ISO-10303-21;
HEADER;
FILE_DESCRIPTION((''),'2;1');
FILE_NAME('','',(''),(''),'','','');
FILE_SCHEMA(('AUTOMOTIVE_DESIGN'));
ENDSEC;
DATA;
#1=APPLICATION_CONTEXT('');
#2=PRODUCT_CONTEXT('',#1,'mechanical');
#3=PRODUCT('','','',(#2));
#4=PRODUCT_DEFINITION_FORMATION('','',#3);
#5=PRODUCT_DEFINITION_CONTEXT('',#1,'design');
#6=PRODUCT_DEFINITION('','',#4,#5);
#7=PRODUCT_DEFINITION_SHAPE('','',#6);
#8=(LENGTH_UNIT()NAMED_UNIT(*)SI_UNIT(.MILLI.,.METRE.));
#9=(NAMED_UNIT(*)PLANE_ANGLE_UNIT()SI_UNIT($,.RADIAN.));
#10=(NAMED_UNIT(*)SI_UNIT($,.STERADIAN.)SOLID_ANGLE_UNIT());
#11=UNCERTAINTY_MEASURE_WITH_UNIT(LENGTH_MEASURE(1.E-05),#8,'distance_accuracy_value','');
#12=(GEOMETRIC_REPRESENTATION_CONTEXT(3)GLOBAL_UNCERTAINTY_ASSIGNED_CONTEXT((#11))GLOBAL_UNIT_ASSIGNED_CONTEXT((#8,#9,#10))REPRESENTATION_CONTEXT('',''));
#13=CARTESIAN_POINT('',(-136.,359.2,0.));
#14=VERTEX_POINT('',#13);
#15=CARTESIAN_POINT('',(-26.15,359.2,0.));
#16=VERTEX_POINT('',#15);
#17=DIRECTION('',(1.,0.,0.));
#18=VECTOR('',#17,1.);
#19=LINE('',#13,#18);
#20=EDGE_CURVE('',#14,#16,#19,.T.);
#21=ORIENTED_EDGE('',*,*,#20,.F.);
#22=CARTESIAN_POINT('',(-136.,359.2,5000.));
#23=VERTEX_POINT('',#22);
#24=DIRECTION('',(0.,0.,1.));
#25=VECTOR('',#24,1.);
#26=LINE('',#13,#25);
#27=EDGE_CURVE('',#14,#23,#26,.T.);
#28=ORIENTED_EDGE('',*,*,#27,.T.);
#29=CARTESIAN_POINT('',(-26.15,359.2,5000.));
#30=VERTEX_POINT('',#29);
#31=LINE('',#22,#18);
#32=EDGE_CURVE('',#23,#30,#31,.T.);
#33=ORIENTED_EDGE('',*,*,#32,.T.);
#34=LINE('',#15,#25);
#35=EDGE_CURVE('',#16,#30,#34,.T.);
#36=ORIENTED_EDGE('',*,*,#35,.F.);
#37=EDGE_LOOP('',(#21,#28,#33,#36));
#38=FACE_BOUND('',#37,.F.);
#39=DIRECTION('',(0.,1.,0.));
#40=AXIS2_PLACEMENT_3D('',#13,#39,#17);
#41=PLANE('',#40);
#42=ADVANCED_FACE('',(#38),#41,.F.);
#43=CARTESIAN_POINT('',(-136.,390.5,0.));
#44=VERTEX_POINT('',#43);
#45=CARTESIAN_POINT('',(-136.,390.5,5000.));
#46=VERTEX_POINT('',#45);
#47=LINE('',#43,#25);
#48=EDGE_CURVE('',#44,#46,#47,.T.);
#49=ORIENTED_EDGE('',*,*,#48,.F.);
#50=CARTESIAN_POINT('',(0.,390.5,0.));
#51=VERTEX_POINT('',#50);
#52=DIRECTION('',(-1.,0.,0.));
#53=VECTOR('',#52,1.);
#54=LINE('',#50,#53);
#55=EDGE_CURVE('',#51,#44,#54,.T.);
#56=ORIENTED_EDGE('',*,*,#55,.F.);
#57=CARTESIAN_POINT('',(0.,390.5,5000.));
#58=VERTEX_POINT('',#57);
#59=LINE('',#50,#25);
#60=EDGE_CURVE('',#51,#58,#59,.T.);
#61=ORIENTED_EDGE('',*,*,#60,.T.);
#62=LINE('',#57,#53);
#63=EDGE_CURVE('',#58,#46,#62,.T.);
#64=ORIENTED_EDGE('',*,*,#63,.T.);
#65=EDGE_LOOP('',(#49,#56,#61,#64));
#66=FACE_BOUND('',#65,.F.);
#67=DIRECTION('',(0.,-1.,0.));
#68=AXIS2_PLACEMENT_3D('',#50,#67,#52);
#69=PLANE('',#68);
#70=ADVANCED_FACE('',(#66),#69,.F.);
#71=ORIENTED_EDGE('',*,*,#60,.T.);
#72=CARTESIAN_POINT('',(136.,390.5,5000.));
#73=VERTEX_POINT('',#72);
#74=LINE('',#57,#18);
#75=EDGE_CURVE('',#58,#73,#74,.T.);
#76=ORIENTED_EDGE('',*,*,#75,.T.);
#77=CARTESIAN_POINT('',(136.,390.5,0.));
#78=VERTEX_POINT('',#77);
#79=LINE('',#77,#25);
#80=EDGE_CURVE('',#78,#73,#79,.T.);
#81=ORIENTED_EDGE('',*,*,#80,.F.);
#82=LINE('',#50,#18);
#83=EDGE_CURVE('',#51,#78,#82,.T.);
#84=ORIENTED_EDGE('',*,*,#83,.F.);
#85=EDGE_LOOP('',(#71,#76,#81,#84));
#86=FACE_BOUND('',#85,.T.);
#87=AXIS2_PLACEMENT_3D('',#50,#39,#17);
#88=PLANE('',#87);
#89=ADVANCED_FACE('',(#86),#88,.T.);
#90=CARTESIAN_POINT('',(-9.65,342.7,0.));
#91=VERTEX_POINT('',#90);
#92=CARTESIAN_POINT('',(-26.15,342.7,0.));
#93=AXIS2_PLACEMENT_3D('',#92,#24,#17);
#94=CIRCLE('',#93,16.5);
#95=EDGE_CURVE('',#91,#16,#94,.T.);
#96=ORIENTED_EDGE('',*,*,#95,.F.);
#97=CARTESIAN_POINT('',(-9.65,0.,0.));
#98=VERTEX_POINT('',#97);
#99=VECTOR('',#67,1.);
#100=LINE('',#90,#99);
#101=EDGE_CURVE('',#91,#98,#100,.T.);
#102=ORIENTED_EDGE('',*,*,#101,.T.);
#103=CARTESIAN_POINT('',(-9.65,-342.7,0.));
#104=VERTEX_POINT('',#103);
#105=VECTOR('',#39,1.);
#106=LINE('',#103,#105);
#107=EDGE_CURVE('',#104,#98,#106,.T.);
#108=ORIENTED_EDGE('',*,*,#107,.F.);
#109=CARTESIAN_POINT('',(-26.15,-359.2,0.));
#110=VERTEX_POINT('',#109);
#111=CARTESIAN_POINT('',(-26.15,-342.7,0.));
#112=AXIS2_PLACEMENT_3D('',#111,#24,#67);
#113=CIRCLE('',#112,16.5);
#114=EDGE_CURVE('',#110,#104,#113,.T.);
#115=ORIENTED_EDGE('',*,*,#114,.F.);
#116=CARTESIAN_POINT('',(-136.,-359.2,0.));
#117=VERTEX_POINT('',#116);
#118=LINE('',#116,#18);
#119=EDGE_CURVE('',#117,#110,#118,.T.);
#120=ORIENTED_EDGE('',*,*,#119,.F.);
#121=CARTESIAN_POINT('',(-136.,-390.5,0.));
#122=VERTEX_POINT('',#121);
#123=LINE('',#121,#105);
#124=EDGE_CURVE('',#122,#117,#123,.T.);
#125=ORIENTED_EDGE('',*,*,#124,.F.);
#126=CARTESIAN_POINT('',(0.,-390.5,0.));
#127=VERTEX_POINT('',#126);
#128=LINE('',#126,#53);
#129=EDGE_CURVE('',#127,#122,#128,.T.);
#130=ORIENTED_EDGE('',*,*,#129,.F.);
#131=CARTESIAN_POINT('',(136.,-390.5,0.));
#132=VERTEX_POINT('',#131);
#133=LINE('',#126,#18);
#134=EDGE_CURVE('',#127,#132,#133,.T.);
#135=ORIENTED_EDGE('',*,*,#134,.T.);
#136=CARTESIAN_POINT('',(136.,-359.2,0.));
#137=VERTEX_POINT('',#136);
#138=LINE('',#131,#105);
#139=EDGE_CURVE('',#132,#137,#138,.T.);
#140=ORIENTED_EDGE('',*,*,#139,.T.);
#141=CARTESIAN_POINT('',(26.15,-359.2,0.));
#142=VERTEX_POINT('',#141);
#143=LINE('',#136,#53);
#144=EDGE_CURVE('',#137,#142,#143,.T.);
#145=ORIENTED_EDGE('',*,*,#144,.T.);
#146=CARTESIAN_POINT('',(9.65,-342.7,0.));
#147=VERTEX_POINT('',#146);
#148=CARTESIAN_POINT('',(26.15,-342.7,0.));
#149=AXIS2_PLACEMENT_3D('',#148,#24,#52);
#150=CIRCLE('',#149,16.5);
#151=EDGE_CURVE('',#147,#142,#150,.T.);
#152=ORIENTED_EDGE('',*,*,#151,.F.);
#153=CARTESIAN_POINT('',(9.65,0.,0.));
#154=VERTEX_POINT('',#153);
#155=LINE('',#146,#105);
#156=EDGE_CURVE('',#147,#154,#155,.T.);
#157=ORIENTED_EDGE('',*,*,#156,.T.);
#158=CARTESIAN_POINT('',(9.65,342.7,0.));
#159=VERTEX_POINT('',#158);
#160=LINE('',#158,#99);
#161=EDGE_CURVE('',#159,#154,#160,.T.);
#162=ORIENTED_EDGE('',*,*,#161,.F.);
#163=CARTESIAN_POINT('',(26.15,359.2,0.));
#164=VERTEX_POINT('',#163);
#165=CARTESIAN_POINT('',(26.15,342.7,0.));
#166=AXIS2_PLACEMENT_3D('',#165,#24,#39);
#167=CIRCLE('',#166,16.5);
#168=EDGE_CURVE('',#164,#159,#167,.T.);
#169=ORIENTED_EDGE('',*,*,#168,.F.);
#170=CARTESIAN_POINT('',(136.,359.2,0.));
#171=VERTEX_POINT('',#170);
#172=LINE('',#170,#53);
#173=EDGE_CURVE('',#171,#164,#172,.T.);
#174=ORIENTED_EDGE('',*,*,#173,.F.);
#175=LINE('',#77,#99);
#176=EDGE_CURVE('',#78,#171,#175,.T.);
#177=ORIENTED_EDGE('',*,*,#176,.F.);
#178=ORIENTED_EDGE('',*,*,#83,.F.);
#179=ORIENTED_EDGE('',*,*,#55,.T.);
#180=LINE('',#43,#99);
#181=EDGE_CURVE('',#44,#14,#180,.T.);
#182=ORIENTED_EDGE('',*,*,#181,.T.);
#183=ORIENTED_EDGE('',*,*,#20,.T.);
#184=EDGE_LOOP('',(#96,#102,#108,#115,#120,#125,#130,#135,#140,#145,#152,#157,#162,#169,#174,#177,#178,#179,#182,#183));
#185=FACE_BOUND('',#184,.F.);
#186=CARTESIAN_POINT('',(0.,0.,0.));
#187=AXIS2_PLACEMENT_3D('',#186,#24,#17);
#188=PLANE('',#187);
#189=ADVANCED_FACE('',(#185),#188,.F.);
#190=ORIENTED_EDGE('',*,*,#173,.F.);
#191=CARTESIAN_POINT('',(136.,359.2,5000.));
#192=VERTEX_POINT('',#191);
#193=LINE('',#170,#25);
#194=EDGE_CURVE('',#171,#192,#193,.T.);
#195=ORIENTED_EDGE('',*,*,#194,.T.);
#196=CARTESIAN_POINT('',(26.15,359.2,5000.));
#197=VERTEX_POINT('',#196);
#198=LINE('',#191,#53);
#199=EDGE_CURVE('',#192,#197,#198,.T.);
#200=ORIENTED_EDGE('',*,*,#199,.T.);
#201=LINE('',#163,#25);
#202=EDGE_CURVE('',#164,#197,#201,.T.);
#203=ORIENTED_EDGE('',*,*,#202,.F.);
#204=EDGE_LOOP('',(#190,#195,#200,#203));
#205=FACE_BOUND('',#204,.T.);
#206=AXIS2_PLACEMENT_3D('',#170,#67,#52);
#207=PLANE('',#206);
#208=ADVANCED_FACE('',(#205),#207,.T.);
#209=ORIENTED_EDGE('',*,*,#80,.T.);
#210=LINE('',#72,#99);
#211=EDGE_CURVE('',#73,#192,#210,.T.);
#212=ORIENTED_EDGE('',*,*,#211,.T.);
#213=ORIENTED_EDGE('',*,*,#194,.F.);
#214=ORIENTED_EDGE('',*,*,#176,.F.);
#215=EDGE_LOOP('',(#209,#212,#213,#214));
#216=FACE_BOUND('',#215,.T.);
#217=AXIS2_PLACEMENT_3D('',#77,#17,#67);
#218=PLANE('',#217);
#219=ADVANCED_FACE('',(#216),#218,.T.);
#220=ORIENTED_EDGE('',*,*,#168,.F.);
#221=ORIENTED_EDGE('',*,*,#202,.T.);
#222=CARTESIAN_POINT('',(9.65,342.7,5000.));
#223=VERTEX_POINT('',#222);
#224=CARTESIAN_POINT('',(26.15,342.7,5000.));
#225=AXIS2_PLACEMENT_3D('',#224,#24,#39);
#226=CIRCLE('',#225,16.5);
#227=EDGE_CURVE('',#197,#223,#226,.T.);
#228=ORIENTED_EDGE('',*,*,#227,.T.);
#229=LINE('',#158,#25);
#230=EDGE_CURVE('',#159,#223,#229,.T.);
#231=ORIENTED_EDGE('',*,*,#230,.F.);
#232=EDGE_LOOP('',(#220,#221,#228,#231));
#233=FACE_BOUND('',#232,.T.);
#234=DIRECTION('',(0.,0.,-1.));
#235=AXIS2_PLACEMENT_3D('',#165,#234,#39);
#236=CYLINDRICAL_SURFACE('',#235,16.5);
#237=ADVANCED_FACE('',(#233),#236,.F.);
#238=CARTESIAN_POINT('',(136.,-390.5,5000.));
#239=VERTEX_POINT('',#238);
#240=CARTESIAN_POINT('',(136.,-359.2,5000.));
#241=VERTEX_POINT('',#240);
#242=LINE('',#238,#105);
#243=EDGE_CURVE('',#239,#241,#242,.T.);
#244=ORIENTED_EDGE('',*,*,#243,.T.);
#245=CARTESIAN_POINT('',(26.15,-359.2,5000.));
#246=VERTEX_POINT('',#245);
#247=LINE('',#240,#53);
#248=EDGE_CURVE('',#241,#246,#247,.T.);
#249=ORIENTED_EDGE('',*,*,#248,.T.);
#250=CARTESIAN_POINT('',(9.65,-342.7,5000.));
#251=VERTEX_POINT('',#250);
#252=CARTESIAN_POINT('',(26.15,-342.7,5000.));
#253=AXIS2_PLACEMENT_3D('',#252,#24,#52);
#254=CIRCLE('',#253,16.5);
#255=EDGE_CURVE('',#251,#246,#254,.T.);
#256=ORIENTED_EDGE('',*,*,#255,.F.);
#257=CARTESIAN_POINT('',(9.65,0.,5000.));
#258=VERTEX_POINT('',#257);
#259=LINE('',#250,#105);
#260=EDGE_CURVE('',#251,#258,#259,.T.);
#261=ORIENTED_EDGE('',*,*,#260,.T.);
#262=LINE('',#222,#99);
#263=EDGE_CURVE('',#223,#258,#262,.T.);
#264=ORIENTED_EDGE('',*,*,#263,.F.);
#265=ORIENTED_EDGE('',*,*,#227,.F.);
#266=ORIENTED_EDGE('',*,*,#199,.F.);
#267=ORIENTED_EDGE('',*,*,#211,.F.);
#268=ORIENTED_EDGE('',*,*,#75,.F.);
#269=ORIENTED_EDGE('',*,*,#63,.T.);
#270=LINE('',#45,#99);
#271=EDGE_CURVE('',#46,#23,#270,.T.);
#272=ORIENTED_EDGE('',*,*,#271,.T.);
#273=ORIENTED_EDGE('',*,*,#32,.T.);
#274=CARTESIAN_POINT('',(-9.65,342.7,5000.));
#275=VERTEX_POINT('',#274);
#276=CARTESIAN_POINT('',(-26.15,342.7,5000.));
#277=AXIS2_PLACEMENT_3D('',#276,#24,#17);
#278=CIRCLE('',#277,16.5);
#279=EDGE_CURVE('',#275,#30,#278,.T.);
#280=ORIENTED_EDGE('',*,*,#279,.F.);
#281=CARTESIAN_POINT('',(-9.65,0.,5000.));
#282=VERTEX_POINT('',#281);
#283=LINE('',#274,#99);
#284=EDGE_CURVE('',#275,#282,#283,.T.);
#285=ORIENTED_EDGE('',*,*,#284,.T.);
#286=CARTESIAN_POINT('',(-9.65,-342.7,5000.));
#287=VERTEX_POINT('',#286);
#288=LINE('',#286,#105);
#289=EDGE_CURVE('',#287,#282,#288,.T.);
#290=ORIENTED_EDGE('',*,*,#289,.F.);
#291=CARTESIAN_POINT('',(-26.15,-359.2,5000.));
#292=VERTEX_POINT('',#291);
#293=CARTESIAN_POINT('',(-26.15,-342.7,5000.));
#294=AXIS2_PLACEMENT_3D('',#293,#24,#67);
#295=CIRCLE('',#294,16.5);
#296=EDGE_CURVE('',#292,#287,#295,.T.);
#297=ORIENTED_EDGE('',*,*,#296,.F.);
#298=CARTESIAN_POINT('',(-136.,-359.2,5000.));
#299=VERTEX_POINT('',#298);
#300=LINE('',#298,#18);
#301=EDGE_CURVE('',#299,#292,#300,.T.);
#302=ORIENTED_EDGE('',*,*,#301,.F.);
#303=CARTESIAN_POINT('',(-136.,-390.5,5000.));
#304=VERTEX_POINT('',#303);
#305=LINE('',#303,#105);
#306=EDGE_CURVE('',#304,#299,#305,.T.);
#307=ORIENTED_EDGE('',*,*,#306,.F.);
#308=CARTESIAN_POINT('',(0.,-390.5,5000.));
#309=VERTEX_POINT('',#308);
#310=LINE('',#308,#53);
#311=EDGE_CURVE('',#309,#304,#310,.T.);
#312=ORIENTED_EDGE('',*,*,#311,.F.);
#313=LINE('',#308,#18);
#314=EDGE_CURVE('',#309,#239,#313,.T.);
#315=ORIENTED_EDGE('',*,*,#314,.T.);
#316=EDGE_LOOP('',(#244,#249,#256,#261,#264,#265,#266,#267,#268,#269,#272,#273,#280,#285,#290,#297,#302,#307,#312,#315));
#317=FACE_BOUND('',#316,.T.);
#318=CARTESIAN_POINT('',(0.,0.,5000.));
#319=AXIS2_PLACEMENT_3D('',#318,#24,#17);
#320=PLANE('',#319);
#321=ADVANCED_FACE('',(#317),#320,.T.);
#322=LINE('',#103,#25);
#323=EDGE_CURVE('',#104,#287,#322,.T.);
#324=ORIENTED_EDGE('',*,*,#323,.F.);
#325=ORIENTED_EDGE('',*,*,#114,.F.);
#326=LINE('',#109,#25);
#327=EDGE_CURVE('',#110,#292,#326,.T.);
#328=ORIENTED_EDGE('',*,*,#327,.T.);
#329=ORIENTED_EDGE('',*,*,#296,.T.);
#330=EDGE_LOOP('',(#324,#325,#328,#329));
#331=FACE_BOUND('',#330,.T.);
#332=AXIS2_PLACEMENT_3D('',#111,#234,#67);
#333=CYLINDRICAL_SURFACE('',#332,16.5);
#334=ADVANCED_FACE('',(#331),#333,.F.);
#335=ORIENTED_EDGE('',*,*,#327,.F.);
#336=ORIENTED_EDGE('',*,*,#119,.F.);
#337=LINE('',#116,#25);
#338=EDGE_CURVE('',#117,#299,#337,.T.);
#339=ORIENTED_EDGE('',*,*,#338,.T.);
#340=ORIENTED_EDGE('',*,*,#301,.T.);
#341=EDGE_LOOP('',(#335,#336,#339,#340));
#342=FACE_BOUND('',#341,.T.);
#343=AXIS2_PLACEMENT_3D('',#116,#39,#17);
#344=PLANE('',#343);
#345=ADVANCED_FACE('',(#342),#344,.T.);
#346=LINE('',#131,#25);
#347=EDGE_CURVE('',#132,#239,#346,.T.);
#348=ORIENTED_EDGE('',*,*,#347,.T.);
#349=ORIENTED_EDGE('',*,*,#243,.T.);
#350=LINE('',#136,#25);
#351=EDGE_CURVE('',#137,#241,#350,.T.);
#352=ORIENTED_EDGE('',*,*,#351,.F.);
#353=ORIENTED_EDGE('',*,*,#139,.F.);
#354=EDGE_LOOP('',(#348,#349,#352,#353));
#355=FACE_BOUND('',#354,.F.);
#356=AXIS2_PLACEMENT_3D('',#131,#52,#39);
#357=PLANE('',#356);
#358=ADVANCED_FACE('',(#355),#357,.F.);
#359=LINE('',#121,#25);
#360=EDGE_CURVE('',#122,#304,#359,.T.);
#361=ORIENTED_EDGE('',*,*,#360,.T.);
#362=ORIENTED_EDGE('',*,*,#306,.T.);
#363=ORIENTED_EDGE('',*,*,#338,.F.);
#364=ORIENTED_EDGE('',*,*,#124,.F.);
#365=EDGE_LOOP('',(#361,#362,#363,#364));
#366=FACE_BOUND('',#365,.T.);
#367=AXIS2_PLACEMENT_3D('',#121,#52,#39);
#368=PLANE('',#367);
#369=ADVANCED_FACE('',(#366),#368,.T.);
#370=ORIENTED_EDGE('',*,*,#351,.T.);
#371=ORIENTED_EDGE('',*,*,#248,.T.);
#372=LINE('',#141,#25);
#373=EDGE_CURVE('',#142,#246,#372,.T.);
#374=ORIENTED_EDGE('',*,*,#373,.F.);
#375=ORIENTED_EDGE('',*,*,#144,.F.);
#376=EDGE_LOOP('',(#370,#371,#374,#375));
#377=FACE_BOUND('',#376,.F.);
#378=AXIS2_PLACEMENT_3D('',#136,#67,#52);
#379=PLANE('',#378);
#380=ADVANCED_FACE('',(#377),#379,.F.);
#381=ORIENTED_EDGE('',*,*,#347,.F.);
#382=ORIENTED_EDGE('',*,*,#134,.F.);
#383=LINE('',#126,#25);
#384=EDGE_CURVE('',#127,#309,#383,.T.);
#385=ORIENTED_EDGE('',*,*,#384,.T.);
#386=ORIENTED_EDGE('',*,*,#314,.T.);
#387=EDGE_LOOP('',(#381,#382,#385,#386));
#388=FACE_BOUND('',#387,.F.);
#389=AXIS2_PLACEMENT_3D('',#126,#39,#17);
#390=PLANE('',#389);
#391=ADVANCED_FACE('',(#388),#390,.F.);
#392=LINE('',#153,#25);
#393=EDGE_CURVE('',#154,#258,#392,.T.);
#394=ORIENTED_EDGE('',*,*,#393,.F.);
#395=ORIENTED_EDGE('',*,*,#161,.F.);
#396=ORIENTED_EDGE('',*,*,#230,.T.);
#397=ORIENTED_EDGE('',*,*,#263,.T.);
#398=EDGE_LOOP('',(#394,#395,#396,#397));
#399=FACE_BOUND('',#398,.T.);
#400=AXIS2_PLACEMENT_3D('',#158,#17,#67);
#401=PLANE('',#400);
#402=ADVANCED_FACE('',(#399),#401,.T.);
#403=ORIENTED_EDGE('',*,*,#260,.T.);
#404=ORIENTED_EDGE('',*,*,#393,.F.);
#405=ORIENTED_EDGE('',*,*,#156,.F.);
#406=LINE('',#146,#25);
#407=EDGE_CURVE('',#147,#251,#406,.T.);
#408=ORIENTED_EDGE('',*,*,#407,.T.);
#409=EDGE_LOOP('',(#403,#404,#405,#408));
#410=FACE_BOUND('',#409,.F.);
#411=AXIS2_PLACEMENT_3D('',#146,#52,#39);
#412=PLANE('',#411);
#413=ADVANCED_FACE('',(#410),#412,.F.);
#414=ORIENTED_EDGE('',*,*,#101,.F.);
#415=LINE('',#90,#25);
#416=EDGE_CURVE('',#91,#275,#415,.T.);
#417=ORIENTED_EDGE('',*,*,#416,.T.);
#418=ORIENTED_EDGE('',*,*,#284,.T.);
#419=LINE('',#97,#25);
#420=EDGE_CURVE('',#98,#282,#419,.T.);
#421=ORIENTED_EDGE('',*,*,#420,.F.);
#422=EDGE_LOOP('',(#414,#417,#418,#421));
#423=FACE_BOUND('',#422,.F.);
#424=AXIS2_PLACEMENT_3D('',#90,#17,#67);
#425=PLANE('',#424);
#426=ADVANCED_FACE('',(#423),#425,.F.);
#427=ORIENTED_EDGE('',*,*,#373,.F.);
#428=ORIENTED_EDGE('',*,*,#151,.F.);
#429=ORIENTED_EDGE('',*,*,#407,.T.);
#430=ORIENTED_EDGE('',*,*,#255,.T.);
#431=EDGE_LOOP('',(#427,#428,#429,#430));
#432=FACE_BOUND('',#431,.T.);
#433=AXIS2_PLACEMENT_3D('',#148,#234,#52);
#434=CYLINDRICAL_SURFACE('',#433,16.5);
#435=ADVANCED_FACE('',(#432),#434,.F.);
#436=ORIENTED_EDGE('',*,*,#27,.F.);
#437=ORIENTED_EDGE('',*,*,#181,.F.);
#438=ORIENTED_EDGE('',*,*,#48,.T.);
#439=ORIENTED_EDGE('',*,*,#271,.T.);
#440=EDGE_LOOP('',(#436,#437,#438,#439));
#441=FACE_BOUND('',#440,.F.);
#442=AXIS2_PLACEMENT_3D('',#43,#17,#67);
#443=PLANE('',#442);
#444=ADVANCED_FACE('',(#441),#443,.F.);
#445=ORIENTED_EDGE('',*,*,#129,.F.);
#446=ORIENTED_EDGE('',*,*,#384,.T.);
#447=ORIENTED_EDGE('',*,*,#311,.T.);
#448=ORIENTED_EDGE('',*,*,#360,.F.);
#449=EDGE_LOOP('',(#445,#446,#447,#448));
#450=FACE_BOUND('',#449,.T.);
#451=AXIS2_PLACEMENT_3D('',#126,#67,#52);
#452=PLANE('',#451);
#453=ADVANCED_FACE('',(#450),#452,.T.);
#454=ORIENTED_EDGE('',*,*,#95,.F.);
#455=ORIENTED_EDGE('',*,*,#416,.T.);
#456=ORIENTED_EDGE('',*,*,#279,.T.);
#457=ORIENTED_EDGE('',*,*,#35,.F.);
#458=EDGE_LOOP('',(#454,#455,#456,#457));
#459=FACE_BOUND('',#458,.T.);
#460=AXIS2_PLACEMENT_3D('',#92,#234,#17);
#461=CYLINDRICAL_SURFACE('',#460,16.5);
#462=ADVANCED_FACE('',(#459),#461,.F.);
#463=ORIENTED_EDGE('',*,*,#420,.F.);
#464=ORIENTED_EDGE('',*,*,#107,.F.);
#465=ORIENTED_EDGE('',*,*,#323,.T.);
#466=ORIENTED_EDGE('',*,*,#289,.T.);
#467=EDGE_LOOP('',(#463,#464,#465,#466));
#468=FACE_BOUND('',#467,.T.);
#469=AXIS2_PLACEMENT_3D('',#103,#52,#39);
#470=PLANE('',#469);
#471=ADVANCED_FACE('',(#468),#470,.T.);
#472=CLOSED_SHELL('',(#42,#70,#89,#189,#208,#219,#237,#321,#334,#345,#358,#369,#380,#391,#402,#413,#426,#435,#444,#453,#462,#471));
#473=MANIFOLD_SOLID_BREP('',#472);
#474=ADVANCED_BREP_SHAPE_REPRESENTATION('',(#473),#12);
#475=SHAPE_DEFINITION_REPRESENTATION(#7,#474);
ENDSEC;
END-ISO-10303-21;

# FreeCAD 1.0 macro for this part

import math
import FreeCAD as App
import Part
import Sketcher
from FreeCAD import Vector

doc = App.newDocument("Part")
body = doc.addObject("PartDesign::Body", "Body")

sketch1 = body.newObject("Sketcher::SketchObject", "Sketch")
sketch1.AttachmentSupport = (doc.getObject("XY_Plane"), [""])
sketch1.MapMode = "FlatFace"
sketch1.addGeometry(Part.LineSegment(Vector(-136, -359, 0), Vector(-136, -390, 0)), False)
sketch1.addGeometry(Part.LineSegment(Vector(-136, -390, 0), Vector(136, -390, 0)), False)
sketch1.addGeometry(Part.LineSegment(Vector(136, -390, 0), Vector(136, -359, 0)), False)
sketch1.addGeometry(Part.LineSegment(Vector(136, -359, 0), Vector(26, -359, 0)), False)
sketch1.addGeometry(Part.ArcOfCircle(Part.Circle(Vector(26, -343, 0), Vector(0, 0, 1), 16), math.radians(180), math.radians(270)), False)
sketch1.addGeometry(Part.LineSegment(Vector(10, -343, 0), Vector(10, 343, 0)), False)
sketch1.addGeometry(Part.ArcOfCircle(Part.Circle(Vector(26, 343, 0), Vector(0, 0, 1), 16), math.radians(90), math.radians(180)), False)
sketch1.addGeometry(Part.LineSegment(Vector(26, 359, 0), Vector(136, 359, 0)), False)
sketch1.addGeometry(Part.LineSegment(Vector(136, 359, 0), Vector(136, 390, 0)), False)
sketch1.addGeometry(Part.LineSegment(Vector(136, 390, 0), Vector(-136, 390, 0)), False)
sketch1.addGeometry(Part.LineSegment(Vector(-136, 390, 0), Vector(-136, 359, 0)), False)
sketch1.addGeometry(Part.LineSegment(Vector(-136, 359, 0), Vector(-26, 359, 0)), False)
sketch1.addGeometry(Part.ArcOfCircle(Part.Circle(Vector(-26, 343, 0), Vector(0, 0, 1), 16), math.radians(0), math.radians(90)), False)
sketch1.addGeometry(Part.LineSegment(Vector(-10, 343, 0), Vector(-10, -343, 0)), False)
sketch1.addGeometry(Part.ArcOfCircle(Part.Circle(Vector(-26, -343, 0), Vector(0, 0, 1), 16), math.radians(-90), math.radians(0)), False)
sketch1.addGeometry(Part.LineSegment(Vector(-26, -359, 0), Vector(-136, -359, 0)), False)
sketch1.addConstraint(Sketcher.Constraint("Coincident", 0, 2, 1, 1))
sketch1.addConstraint(Sketcher.Constraint("Coincident", 1, 2, 2, 1))
sketch1.addConstraint(Sketcher.Constraint("Coincident", 2, 2, 3, 1))
sketch1.addConstraint(Sketcher.Constraint("Tangent", 3, 2, 4, 2))
sketch1.addConstraint(Sketcher.Constraint("Tangent", 4, 1, 5, 1))
sketch1.addConstraint(Sketcher.Constraint("Tangent", 5, 2, 6, 2))
sketch1.addConstraint(Sketcher.Constraint("Tangent", 6, 1, 7, 1))
sketch1.addConstraint(Sketcher.Constraint("Coincident", 7, 2, 8, 1))
sketch1.addConstraint(Sketcher.Constraint("Coincident", 8, 2, 9, 1))
sketch1.addConstraint(Sketcher.Constraint("Coincident", 9, 2, 10, 1))
sketch1.addConstraint(Sketcher.Constraint("Coincident", 10, 2, 11, 1))
sketch1.addConstraint(Sketcher.Constraint("Tangent", 11, 2, 12, 2))
sketch1.addConstraint(Sketcher.Constraint("Tangent", 12, 1, 13, 1))
sketch1.addConstraint(Sketcher.Constraint("Tangent", 13, 2, 14, 2))
sketch1.addConstraint(Sketcher.Constraint("Tangent", 14, 1, 15, 1))
sketch1.addConstraint(Sketcher.Constraint("Coincident", 15, 2, 0, 1))
sketch1.addConstraint(Sketcher.Constraint("Vertical", 0))
sketch1.addConstraint(Sketcher.Constraint("Horizontal", 1))
sketch1.addConstraint(Sketcher.Constraint("Vertical", 2))
sketch1.addConstraint(Sketcher.Constraint("Horizontal", 3))
sketch1.addConstraint(Sketcher.Constraint("Vertical", 5))
sketch1.addConstraint(Sketcher.Constraint("Horizontal", 7))
sketch1.addConstraint(Sketcher.Constraint("Vertical", 8))
sketch1.addConstraint(Sketcher.Constraint("Horizontal", 9))
sketch1.addConstraint(Sketcher.Constraint("Vertical", 10))
sketch1.addConstraint(Sketcher.Constraint("Horizontal", 11))
sketch1.addConstraint(Sketcher.Constraint("Vertical", 13))
sketch1.addConstraint(Sketcher.Constraint("Horizontal", 15))
sketch1.addConstraint(Sketcher.Constraint("Equal", 4, 6))
sketch1.addConstraint(Sketcher.Constraint("Equal", 6, 12))
sketch1.addConstraint(Sketcher.Constraint("Equal", 12, 14))
sketch1.addConstraint(Sketcher.Constraint("Symmetric", 4, 3, 12, 3, -1, 1))
sketch1.addConstraint(Sketcher.Constraint("Symmetric", 0, 2, 8, 2, -1, 1))
sketch1.addConstraint(Sketcher.Constraint("Symmetric", 7, 2, 10, 2, -2))
sketch1.addConstraint(Sketcher.Constraint("Symmetric", 2, 2, 15, 2, -2))
sketch1.addConstraint(Sketcher.Constraint("Radius", 4, 16.5))
sketch1.addConstraint(Sketcher.Constraint("DistanceY", 0, 2, 0, 1, 31.3))
sketch1.addConstraint(Sketcher.Constraint("DistanceX", 0, 2, -1, 1, 136.0))
sketch1.addConstraint(Sketcher.Constraint("DistanceY", 0, 2, -1, 1, 390.5))
sketch1.addConstraint(Sketcher.Constraint("DistanceX", -1, 1, 4, 1, 9.65))
pad1 = body.newObject("PartDesign::Pad", "Pad")
pad1.Profile = sketch1
pad1.Length = 5000

doc.recompute()
